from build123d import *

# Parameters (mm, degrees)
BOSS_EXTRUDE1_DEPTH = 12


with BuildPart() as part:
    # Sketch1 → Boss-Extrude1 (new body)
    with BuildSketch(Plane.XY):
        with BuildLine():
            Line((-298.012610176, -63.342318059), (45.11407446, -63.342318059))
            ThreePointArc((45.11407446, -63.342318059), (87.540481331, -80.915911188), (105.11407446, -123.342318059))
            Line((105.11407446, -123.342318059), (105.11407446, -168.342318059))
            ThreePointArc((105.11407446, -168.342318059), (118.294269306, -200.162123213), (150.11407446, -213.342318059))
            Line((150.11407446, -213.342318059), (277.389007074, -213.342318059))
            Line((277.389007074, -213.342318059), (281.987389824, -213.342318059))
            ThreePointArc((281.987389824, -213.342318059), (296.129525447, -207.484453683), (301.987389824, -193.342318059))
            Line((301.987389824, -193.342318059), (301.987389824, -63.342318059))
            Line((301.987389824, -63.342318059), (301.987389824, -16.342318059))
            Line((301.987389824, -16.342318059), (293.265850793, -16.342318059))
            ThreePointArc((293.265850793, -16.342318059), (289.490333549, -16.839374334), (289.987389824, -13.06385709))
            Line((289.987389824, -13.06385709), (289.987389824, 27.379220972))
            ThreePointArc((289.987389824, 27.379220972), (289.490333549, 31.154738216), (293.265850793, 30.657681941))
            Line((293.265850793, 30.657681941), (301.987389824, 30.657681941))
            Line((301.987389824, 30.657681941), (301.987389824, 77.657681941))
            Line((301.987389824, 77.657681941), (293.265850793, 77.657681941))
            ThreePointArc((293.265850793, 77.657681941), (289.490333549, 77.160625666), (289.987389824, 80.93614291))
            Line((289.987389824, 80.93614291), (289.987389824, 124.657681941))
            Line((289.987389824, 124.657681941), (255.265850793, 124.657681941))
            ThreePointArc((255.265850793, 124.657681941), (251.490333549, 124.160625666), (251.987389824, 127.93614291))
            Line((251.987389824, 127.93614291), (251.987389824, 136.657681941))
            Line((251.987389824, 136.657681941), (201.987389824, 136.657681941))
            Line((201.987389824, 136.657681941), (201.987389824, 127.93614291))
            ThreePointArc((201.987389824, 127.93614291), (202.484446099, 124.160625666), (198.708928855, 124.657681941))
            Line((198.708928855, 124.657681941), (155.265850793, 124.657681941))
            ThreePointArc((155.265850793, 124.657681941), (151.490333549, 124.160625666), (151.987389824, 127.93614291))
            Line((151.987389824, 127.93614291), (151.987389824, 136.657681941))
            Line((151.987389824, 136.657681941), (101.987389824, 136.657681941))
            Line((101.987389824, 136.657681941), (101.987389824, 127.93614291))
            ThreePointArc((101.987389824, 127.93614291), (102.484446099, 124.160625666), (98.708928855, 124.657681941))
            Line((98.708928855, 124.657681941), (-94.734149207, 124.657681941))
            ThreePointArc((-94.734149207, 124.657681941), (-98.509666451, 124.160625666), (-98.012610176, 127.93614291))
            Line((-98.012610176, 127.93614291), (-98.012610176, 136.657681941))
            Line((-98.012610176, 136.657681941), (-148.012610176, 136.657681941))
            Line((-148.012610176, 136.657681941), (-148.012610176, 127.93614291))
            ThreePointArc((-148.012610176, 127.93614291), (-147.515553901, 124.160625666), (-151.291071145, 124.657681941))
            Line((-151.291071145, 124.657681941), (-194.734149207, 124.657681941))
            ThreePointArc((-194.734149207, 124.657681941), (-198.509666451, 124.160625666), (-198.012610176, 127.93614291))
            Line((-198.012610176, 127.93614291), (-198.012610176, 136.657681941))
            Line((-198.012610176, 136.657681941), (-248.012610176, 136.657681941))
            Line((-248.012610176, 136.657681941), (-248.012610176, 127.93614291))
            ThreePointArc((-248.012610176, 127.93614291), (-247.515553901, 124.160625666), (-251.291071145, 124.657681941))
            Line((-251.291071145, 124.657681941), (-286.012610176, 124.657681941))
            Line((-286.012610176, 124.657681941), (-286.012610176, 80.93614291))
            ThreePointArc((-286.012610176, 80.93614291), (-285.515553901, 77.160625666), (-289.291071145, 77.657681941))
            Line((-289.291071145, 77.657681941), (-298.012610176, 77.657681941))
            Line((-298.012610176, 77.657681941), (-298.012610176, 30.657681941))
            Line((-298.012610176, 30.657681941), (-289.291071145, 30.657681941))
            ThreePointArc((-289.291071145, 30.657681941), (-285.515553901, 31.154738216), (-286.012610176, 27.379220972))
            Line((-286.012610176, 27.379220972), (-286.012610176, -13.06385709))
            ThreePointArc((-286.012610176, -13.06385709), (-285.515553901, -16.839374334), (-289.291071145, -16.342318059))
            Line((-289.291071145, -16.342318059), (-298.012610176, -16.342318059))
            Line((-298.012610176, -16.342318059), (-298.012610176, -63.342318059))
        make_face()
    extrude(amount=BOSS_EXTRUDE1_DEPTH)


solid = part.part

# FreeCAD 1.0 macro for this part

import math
import FreeCAD as App
import Part
import Sketcher
Q = App.Units.Quantity

doc = App.newDocument("Part")
params = doc.addObject("Spreadsheet::Sheet", "Params")
for row, (alias, value) in enumerate([
    ("sketch1_radius", "60 mm"),
    ("sketch1_radius2", "45 mm"),
    ("sketch1_radius3", "20 mm"),
    ("sketch1_radius4", "2.4 mm"),
    ("sketch1_width", "50 mm"),
    ("pad1_length", "12 mm"),
], start=1):
    params.set(f"A{row}", alias)
    params.set(f"B{row}", "=" + value)
    params.setAlias(f"B{row}", alias)

body = doc.addObject("PartDesign::Body", "Body")

# Sketch on XY plane
sketch1 = body.newObject("Sketcher::SketchObject", "Sketch")
sketch1.AttachmentSupport = (doc.getObject("XY_Plane"), [""])
sketch1.MapMode = "FlatFace"
sketch1.addGeometry([
    Part.LineSegment(App.Vector(-298, -63.3, 0), App.Vector(45.1, -63.3, 0)),  # 0
    Part.ArcOfCircle(Part.Circle(App.Vector(45.1, -123.3, 0), App.Vector(0, 0, 1), 60), math.radians(0), math.radians(90)),  # 1
    Part.LineSegment(App.Vector(105.1, -123.3, 0), App.Vector(105.1, -168.3, 0)),  # 2
    Part.ArcOfCircle(Part.Circle(App.Vector(150.1, -168.3, 0), App.Vector(0, 0, 1), 45), math.radians(180), math.radians(270)),  # 3
    Part.LineSegment(App.Vector(150.1, -213.3, 0), App.Vector(282, -213.3, 0)),  # 4
    Part.ArcOfCircle(Part.Circle(App.Vector(282, -193.3, 0), App.Vector(0, 0, 1), 20), math.radians(-90), math.radians(0)),  # 5
    Part.LineSegment(App.Vector(302, -193.3, 0), App.Vector(302, -16.3, 0)),  # 6
    Part.LineSegment(App.Vector(302, -16.3, 0), App.Vector(293.3, -16.3, 0)),  # 7
    Part.ArcOfCircle(Part.Circle(App.Vector(291.2, -15.1, 0), App.Vector(0, 0, 1), 2.4), math.radians(120), math.radians(330)),  # 8
    Part.LineSegment(App.Vector(290, -13.1, 0), App.Vector(290, 27.4, 0)),  # 9
    Part.ArcOfCircle(Part.Circle(App.Vector(291.2, 29.5, 0), App.Vector(0, 0, 1), 2.4), math.radians(30), math.radians(240)),  # 10
    Part.LineSegment(App.Vector(293.3, 30.7, 0), App.Vector(302, 30.7, 0)),  # 11
    Part.LineSegment(App.Vector(302, 30.7, 0), App.Vector(302, 77.7, 0)),  # 12
    Part.LineSegment(App.Vector(302, 77.7, 0), App.Vector(293.3, 77.7, 0)),  # 13
    Part.ArcOfCircle(Part.Circle(App.Vector(291.2, 78.9, 0), App.Vector(0, 0, 1), 2.4), math.radians(120), math.radians(330)),  # 14
    Part.LineSegment(App.Vector(290, 80.9, 0), App.Vector(290, 124.7, 0)),  # 15
    Part.LineSegment(App.Vector(290, 124.7, 0), App.Vector(255.3, 124.7, 0)),  # 16
    Part.ArcOfCircle(Part.Circle(App.Vector(253.2, 125.9, 0), App.Vector(0, 0, 1), 2.4), math.radians(120), math.radians(330)),  # 17
    Part.LineSegment(App.Vector(252, 127.9, 0), App.Vector(252, 136.7, 0)),  # 18
    Part.LineSegment(App.Vector(252, 136.7, 0), App.Vector(202, 136.7, 0)),  # 19
    Part.LineSegment(App.Vector(202, 136.7, 0), App.Vector(202, 127.9, 0)),  # 20
    Part.ArcOfCircle(Part.Circle(App.Vector(200.8, 125.9, 0), App.Vector(0, 0, 1), 2.4), math.radians(-150), math.radians(60)),  # 21
    Part.LineSegment(App.Vector(198.7, 124.7, 0), App.Vector(155.3, 124.7, 0)),  # 22
    Part.ArcOfCircle(Part.Circle(App.Vector(153.2, 125.9, 0), App.Vector(0, 0, 1), 2.4), math.radians(120), math.radians(330)),  # 23
    Part.LineSegment(App.Vector(152, 127.9, 0), App.Vector(152, 136.7, 0)),  # 24
    Part.LineSegment(App.Vector(152, 136.7, 0), App.Vector(102, 136.7, 0)),  # 25
    Part.LineSegment(App.Vector(102, 136.7, 0), App.Vector(102, 127.9, 0)),  # 26
    Part.ArcOfCircle(Part.Circle(App.Vector(100.8, 125.9, 0), App.Vector(0, 0, 1), 2.4), math.radians(-150), math.radians(60)),  # 27
    Part.LineSegment(App.Vector(98.7, 124.7, 0), App.Vector(-94.7, 124.7, 0)),  # 28
    Part.ArcOfCircle(Part.Circle(App.Vector(-96.8, 125.9, 0), App.Vector(0, 0, 1), 2.4), math.radians(120), math.radians(330)),  # 29
    Part.LineSegment(App.Vector(-98, 127.9, 0), App.Vector(-98, 136.7, 0)),  # 30
    Part.LineSegment(App.Vector(-98, 136.7, 0), App.Vector(-148, 136.7, 0)),  # 31
    Part.LineSegment(App.Vector(-148, 136.7, 0), App.Vector(-148, 127.9, 0)),  # 32
    Part.ArcOfCircle(Part.Circle(App.Vector(-149.2, 125.9, 0), App.Vector(0, 0, 1), 2.4), math.radians(-150), math.radians(60)),  # 33
    Part.LineSegment(App.Vector(-151.3, 124.7, 0), App.Vector(-194.7, 124.7, 0)),  # 34
    Part.ArcOfCircle(Part.Circle(App.Vector(-196.8, 125.9, 0), App.Vector(0, 0, 1), 2.4), math.radians(120), math.radians(330)),  # 35
    Part.LineSegment(App.Vector(-198, 127.9, 0), App.Vector(-198, 136.7, 0)),  # 36
    Part.LineSegment(App.Vector(-198, 136.7, 0), App.Vector(-248, 136.7, 0)),  # 37
    Part.LineSegment(App.Vector(-248, 136.7, 0), App.Vector(-248, 127.9, 0)),  # 38
    Part.ArcOfCircle(Part.Circle(App.Vector(-249.2, 125.9, 0), App.Vector(0, 0, 1), 2.4), math.radians(-150), math.radians(60)),  # 39
    Part.LineSegment(App.Vector(-251.3, 124.7, 0), App.Vector(-286, 124.7, 0)),  # 40
    Part.LineSegment(App.Vector(-286, 124.7, 0), App.Vector(-286, 80.9, 0)),  # 41
    Part.ArcOfCircle(Part.Circle(App.Vector(-287.2, 78.9, 0), App.Vector(0, 0, 1), 2.4), math.radians(-150), math.radians(60)),  # 42
    Part.LineSegment(App.Vector(-289.3, 77.7, 0), App.Vector(-298, 77.7, 0)),  # 43
    Part.LineSegment(App.Vector(-298, 77.7, 0), App.Vector(-298, 30.7, 0)),  # 44
    Part.LineSegment(App.Vector(-298, 30.7, 0), App.Vector(-289.3, 30.7, 0)),  # 45
    Part.ArcOfCircle(Part.Circle(App.Vector(-287.2, 29.5, 0), App.Vector(0, 0, 1), 2.4), math.radians(-60), math.radians(150)),  # 46
    Part.LineSegment(App.Vector(-286, 27.4, 0), App.Vector(-286, -13.1, 0)),  # 47
    Part.ArcOfCircle(Part.Circle(App.Vector(-287.2, -15.1, 0), App.Vector(0, 0, 1), 2.4), math.radians(-150), math.radians(60)),  # 48
    Part.LineSegment(App.Vector(-289.3, -16.3, 0), App.Vector(-298, -16.3, 0)),  # 49
    Part.LineSegment(App.Vector(-298, -16.3, 0), App.Vector(-298, -63.3, 0)),  # 50
], False)
sketch1.addConstraint([
    Sketcher.Constraint("Tangent", 0, 2, 1, 2),
    Sketcher.Constraint("Tangent", 1, 1, 2, 1),
    Sketcher.Constraint("Tangent", 2, 2, 3, 1),
    Sketcher.Constraint("Tangent", 3, 2, 4, 1),
    Sketcher.Constraint("Tangent", 4, 2, 5, 1),
    Sketcher.Constraint("Tangent", 5, 2, 6, 1),
    Sketcher.Constraint("Coincident", 6, 2, 7, 1),
    Sketcher.Constraint("Coincident", 7, 2, 8, 2),
    Sketcher.Constraint("Coincident", 8, 1, 9, 1),
    Sketcher.Constraint("Coincident", 9, 2, 10, 2),
    Sketcher.Constraint("Coincident", 10, 1, 11, 1),
    Sketcher.Constraint("Coincident", 11, 2, 12, 1),
    Sketcher.Constraint("Coincident", 12, 2, 13, 1),
    Sketcher.Constraint("Coincident", 13, 2, 14, 2),
    Sketcher.Constraint("Coincident", 14, 1, 15, 1),
    Sketcher.Constraint("Coincident", 15, 2, 16, 1),
    Sketcher.Constraint("Coincident", 16, 2, 17, 2),
    Sketcher.Constraint("Coincident", 17, 1, 18, 1),
    Sketcher.Constraint("Coincident", 18, 2, 19, 1),
    Sketcher.Constraint("Coincident", 19, 2, 20, 1),
    Sketcher.Constraint("Coincident", 20, 2, 21, 2),
    Sketcher.Constraint("Coincident", 21, 1, 22, 1),
    Sketcher.Constraint("Coincident", 22, 2, 23, 2),
    Sketcher.Constraint("Coincident", 23, 1, 24, 1),
    Sketcher.Constraint("Coincident", 24, 2, 25, 1),
    Sketcher.Constraint("Coincident", 25, 2, 26, 1),
    Sketcher.Constraint("Coincident", 26, 2, 27, 2),
    Sketcher.Constraint("Coincident", 27, 1, 28, 1),
    Sketcher.Constraint("Coincident", 28, 2, 29, 2),
    Sketcher.Constraint("Coincident", 29, 1, 30, 1),
    Sketcher.Constraint("Coincident", 30, 2, 31, 1),
    Sketcher.Constraint("Coincident", 31, 2, 32, 1),
    Sketcher.Constraint("Coincident", 32, 2, 33, 2),
    Sketcher.Constraint("Coincident", 33, 1, 34, 1),
    Sketcher.Constraint("Coincident", 34, 2, 35, 2),
    Sketcher.Constraint("Coincident", 35, 1, 36, 1),
    Sketcher.Constraint("Coincident", 36, 2, 37, 1),
    Sketcher.Constraint("Coincident", 37, 2, 38, 1),
    Sketcher.Constraint("Coincident", 38, 2, 39, 2),
    Sketcher.Constraint("Coincident", 39, 1, 40, 1),
    Sketcher.Constraint("Coincident", 40, 2, 41, 1),
    Sketcher.Constraint("Coincident", 41, 2, 42, 2),
    Sketcher.Constraint("Coincident", 42, 1, 43, 1),
    Sketcher.Constraint("Coincident", 43, 2, 44, 1),
    Sketcher.Constraint("Coincident", 44, 2, 45, 1),
    Sketcher.Constraint("Coincident", 45, 2, 46, 2),
    Sketcher.Constraint("Coincident", 46, 1, 47, 1),
    Sketcher.Constraint("Coincident", 47, 2, 48, 2),
    Sketcher.Constraint("Coincident", 48, 1, 49, 1),
    Sketcher.Constraint("Coincident", 49, 2, 50, 1),
    Sketcher.Constraint("Coincident", 50, 2, 0, 1),
    Sketcher.Constraint("Horizontal", 0),
    Sketcher.Constraint("Vertical", 2),
    Sketcher.Constraint("Horizontal", 4),
    Sketcher.Constraint("Vertical", 6),
    Sketcher.Constraint("Horizontal", 7),
    Sketcher.Constraint("Vertical", 9),
    Sketcher.Constraint("Horizontal", 11),
    Sketcher.Constraint("Vertical", 12),
    Sketcher.Constraint("Horizontal", 13),
    Sketcher.Constraint("Vertical", 15),
    Sketcher.Constraint("Horizontal", 16),
    Sketcher.Constraint("Vertical", 18),
    Sketcher.Constraint("Horizontal", 19),
    Sketcher.Constraint("Vertical", 20),
    Sketcher.Constraint("Horizontal", 22),
    Sketcher.Constraint("Vertical", 24),
    Sketcher.Constraint("Horizontal", 25),
    Sketcher.Constraint("Vertical", 26),
    Sketcher.Constraint("Horizontal", 28),
    Sketcher.Constraint("Vertical", 30),
    Sketcher.Constraint("Horizontal", 31),
    Sketcher.Constraint("Vertical", 32),
    Sketcher.Constraint("Horizontal", 34),
    Sketcher.Constraint("Vertical", 36),
    Sketcher.Constraint("Horizontal", 37),
    Sketcher.Constraint("Vertical", 38),
    Sketcher.Constraint("Horizontal", 40),
    Sketcher.Constraint("Vertical", 41),
    Sketcher.Constraint("Horizontal", 43),
    Sketcher.Constraint("Vertical", 44),
    Sketcher.Constraint("Horizontal", 45),
    Sketcher.Constraint("Vertical", 47),
    Sketcher.Constraint("Horizontal", 49),
    Sketcher.Constraint("Vertical", 50),
    Sketcher.Constraint("Equal", 8, 10),
    Sketcher.Constraint("Equal", 10, 14),
    Sketcher.Constraint("Equal", 14, 17),
    Sketcher.Constraint("Equal", 17, 21),
    Sketcher.Constraint("Equal", 21, 23),
    Sketcher.Constraint("Equal", 23, 27),
    Sketcher.Constraint("Equal", 27, 29),
    Sketcher.Constraint("Equal", 29, 33),
    Sketcher.Constraint("Equal", 33, 35),
    Sketcher.Constraint("Equal", 35, 39),
    Sketcher.Constraint("Equal", 39, 42),
    Sketcher.Constraint("Equal", 42, 46),
    Sketcher.Constraint("Equal", 46, 48),
    Sketcher.Constraint("Horizontal", 17, 3, 21, 3),
    Sketcher.Constraint("Horizontal", 21, 3, 23, 3),
    Sketcher.Constraint("Horizontal", 23, 3, 27, 3),
    Sketcher.Constraint("Horizontal", 27, 3, 29, 3),
    Sketcher.Constraint("Horizontal", 29, 3, 33, 3),
    Sketcher.Constraint("Horizontal", 33, 3, 35, 3),
    Sketcher.Constraint("Horizontal", 35, 3, 39, 3),
    Sketcher.Constraint("Horizontal", 14, 3, 42, 3),
    Sketcher.Constraint("Horizontal", 10, 3, 46, 3),
    Sketcher.Constraint("Horizontal", 8, 3, 48, 3),
    Sketcher.Constraint("Horizontal", 17, 1, 20, 2),
    Sketcher.Constraint("Horizontal", 16, 2, 21, 1),
    Sketcher.Constraint("Horizontal", 20, 2, 23, 1),
    Sketcher.Constraint("Horizontal", 19, 2, 24, 2),
    Sketcher.Constraint("Horizontal", 23, 1, 26, 2),
    Sketcher.Constraint("Horizontal", 22, 2, 27, 1),
    Sketcher.Constraint("Horizontal", 26, 2, 29, 1),
    Sketcher.Constraint("Horizontal", 25, 2, 30, 2),
    Sketcher.Constraint("Horizontal", 29, 1, 32, 2),
    Sketcher.Constraint("Horizontal", 28, 2, 33, 1),
    Sketcher.Constraint("Horizontal", 32, 2, 35, 1),
    Sketcher.Constraint("Horizontal", 31, 2, 36, 2),
    Sketcher.Constraint("Horizontal", 35, 1, 38, 2),
    Sketcher.Constraint("Horizontal", 34, 2, 39, 1),
    Sketcher.Constraint("Horizontal", 14, 1, 41, 2),
    Sketcher.Constraint("Horizontal", 13, 2, 42, 1),
    Sketcher.Constraint("Horizontal", 11, 2, 44, 2),
    Sketcher.Constraint("Horizontal", 9, 2, 46, 1),
    Sketcher.Constraint("Horizontal", 8, 1, 47, 2),
    Sketcher.Constraint("Horizontal", 7, 2, 48, 1),
    Sketcher.Constraint("Vertical", 8, 3, 10, 3),
    Sketcher.Constraint("Vertical", 10, 3, 14, 3),
    Sketcher.Constraint("Vertical", 42, 3, 46, 3),
    Sketcher.Constraint("Vertical", 7, 2, 10, 1),
    Sketcher.Constraint("Vertical", 6, 2, 11, 2),
    Sketcher.Constraint("Vertical", 10, 1, 13, 2),
    Sketcher.Constraint("Vertical", 9, 2, 14, 1),
    Sketcher.Constraint("Vertical", 44, 2, 49, 2),
    Sketcher.Constraint("Equal", 19, 25),
    Sketcher.Constraint("Equal", 25, 31),
    Sketcher.Constraint("Equal", 22, 34),
    Sketcher.Constraint("Equal", 31, 37),
    Sketcher.Constraint("Equal", 16, 40),
    Sketcher.Constraint("Equal", 13, 43),
    Sketcher.Constraint("Equal", 49, 18),
    Sketcher.Constraint("Equal", 44, 50),
    Sketcher.Constraint("Radius", 1, Q("60 mm")),
    Sketcher.Constraint("Radius", 3, Q("45 mm")),
    Sketcher.Constraint("Radius", 5, Q("20 mm")),
    Sketcher.Constraint("Radius", 8, Q("2.4 mm")),
    Sketcher.Constraint("DistanceX", 19, 2, 19, 1, Q("50 mm")),
    Sketcher.Constraint("DistanceY", 2, 2, 2, 1, Q("45 mm")),
    Sketcher.Constraint("DistanceY", 6, 1, 6, 2, Q("177 mm")),
    Sketcher.Constraint("DistanceX", 7, 2, 7, 1, Q("8.721539 mm")),
    Sketcher.Constraint("DistanceX", 16, 2, 16, 1, Q("34.721539 mm")),
    Sketcher.Constraint("DistanceX", 22, 2, 22, 1, Q("43.443078 mm")),
    Sketcher.Constraint("DistanceX", 28, 2, 28, 1, Q("193.443078 mm")),
    Sketcher.Constraint("DistanceY", 9, 1, 9, 2, Q("40.443078 mm")),
    Sketcher.Constraint("DistanceY", 15, 1, 15, 2, Q("43.721539 mm")),
    Sketcher.Constraint("DistanceX", 0, 1, 0, 2, Q("343.126685 mm")),
    Sketcher.Constraint("DistanceX", 4, 1, 4, 2, Q("131.873315 mm")),
    Sketcher.Constraint("DistanceY", 1, 3, -1, 1, Q("123.342318 mm")),
    Sketcher.Constraint("DistanceX", -1, 1, 5, 3, Q("281.98739 mm")),
    Sketcher.Constraint("DistanceX", -1, 1, 8, 3, Q("291.18739 mm")),
    Sketcher.Constraint("DistanceY", -1, 1, 10, 3, Q("29.457682 mm")),
    Sketcher.Constraint("DistanceX", -1, 1, 17, 3, Q("253.18739 mm")),
])
sketch1.setExpression("Constraints[144]", "Params.sketch1_radius")
sketch1.setExpression("Constraints[145]", "Params.sketch1_radius2")
sketch1.setExpression("Constraints[146]", "Params.sketch1_radius3")
sketch1.setExpression("Constraints[147]", "Params.sketch1_radius4")
sketch1.setExpression("Constraints[148]", "Params.sketch1_width")
pad1 = body.newObject("PartDesign::Pad", "Pad")
pad1.Profile = sketch1
pad1.setExpression("Length", "Params.pad1_length")

doc.recompute()
